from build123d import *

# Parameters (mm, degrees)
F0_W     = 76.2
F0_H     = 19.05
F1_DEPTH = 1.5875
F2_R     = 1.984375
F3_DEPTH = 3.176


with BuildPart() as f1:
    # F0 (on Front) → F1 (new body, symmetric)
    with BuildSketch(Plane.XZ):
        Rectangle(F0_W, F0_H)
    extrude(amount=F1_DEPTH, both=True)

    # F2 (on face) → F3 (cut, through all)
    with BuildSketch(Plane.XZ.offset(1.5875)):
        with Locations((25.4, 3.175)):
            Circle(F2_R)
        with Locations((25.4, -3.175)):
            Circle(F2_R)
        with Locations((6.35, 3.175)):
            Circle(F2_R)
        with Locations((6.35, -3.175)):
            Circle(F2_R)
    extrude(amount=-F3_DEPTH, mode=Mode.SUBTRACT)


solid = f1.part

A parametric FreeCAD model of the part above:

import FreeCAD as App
import Part
import Sketcher
Q = App.Units.Quantity

doc = App.newDocument("Part")
body = doc.addObject("PartDesign::Body", "Body")

sketch1 = doc.addObject("Sketcher::SketchObject", "Sketch")
body.addObject(sketch1)
sketch1.AttachmentSupport = (doc.XZ_Plane, [""])
sketch1.MapMode = "FlatFace"
sketch1.addGeometry(Part.LineSegment(App.Vector(-38, 10, 0), App.Vector(-38, -10, 0)), False)
sketch1.addGeometry(Part.LineSegment(App.Vector(-38, -10, 0), App.Vector(38, -10, 0)), False)
sketch1.addGeometry(Part.LineSegment(App.Vector(38, -10, 0), App.Vector(38, 10, 0)), False)
sketch1.addGeometry(Part.LineSegment(App.Vector(38, 10, 0), App.Vector(-38, 10, 0)), False)
sketch1.addConstraint(Sketcher.Constraint("Coincident", 0, 2, 1, 1))
sketch1.addConstraint(Sketcher.Constraint("Coincident", 1, 2, 2, 1))
sketch1.addConstraint(Sketcher.Constraint("Coincident", 2, 2, 3, 1))
sketch1.addConstraint(Sketcher.Constraint("Coincident", 3, 2, 0, 1))
sketch1.addConstraint(Sketcher.Constraint("Vertical", 0))
sketch1.addConstraint(Sketcher.Constraint("Horizontal", 1))
sketch1.addConstraint(Sketcher.Constraint("Vertical", 2))
sketch1.addConstraint(Sketcher.Constraint("Horizontal", 3))
sketch1.addConstraint(Sketcher.Constraint("Symmetric", 0, 2, 2, 2, -1, 1))
sketch1.addConstraint(Sketcher.Constraint("DistanceX", 1, 1, 1, 2, Q("3 in")))
sketch1.addConstraint(Sketcher.Constraint("DistanceY", 0, 2, 0, 1, Q("0.75 in")))
pad1 = doc.addObject("PartDesign::Pad", "Pad")
body.addObject(pad1)
pad1.Profile = sketch1
pad1.Length = Q("0.125 in")
pad1.Midplane = True

sketch2 = doc.addObject("Sketcher::SketchObject", "Sketch001")
body.addObject(sketch2)
sketch2.AttachmentSupport = (doc.XZ_Plane, [""])
sketch2.MapMode = "FlatFace"
sketch2.AttachmentOffset = App.Placement(App.Vector(0, 0, 0.0625 * 25.4), App.Rotation())
sketch2.addGeometry(Part.Circle(App.Vector(25.4, 3.2, 0), App.Vector(0, 0, 1), 2), False)
sketch2.addGeometry(Part.Circle(App.Vector(25.4, -3.2, 0), App.Vector(0, 0, 1), 2), False)
sketch2.addGeometry(Part.Circle(App.Vector(6.3, 3.2, 0), App.Vector(0, 0, 1), 2), False)
sketch2.addGeometry(Part.Circle(App.Vector(6.3, -3.2, 0), App.Vector(0, 0, 1), 2), False)
sketch2.addConstraint(Sketcher.Constraint("Equal", 0, 1))
sketch2.addConstraint(Sketcher.Constraint("Equal", 1, 2))
sketch2.addConstraint(Sketcher.Constraint("Equal", 2, 3))
sketch2.addConstraint(Sketcher.Constraint("Symmetric", 0, 3, 1, 3, -1))
sketch2.addConstraint(Sketcher.Constraint("Symmetric", 2, 3, 3, 3, -1))
sketch2.addConstraint(Sketcher.Constraint("Horizontal", 0, 3, 2, 3))
sketch2.addConstraint(Sketcher.Constraint("Diameter", 0, Q("0.15625 in")))
sketch2.addConstraint(Sketcher.Constraint("DistanceX", -1, 1, 0, 3, Q("1 in")))
sketch2.addConstraint(Sketcher.Constraint("DistanceX", -1, 1, 2, 3, Q("0.25 in")))
sketch2.addConstraint(Sketcher.Constraint("DistanceY", 1, 3, 0, 3, Q("0.25 in")))
pocket1 = doc.addObject("PartDesign::Pocket", "Pocket")
body.addObject(pocket1)
pocket1.Profile = sketch2
pocket1.Type = "ThroughAll"

doc.recompute()
